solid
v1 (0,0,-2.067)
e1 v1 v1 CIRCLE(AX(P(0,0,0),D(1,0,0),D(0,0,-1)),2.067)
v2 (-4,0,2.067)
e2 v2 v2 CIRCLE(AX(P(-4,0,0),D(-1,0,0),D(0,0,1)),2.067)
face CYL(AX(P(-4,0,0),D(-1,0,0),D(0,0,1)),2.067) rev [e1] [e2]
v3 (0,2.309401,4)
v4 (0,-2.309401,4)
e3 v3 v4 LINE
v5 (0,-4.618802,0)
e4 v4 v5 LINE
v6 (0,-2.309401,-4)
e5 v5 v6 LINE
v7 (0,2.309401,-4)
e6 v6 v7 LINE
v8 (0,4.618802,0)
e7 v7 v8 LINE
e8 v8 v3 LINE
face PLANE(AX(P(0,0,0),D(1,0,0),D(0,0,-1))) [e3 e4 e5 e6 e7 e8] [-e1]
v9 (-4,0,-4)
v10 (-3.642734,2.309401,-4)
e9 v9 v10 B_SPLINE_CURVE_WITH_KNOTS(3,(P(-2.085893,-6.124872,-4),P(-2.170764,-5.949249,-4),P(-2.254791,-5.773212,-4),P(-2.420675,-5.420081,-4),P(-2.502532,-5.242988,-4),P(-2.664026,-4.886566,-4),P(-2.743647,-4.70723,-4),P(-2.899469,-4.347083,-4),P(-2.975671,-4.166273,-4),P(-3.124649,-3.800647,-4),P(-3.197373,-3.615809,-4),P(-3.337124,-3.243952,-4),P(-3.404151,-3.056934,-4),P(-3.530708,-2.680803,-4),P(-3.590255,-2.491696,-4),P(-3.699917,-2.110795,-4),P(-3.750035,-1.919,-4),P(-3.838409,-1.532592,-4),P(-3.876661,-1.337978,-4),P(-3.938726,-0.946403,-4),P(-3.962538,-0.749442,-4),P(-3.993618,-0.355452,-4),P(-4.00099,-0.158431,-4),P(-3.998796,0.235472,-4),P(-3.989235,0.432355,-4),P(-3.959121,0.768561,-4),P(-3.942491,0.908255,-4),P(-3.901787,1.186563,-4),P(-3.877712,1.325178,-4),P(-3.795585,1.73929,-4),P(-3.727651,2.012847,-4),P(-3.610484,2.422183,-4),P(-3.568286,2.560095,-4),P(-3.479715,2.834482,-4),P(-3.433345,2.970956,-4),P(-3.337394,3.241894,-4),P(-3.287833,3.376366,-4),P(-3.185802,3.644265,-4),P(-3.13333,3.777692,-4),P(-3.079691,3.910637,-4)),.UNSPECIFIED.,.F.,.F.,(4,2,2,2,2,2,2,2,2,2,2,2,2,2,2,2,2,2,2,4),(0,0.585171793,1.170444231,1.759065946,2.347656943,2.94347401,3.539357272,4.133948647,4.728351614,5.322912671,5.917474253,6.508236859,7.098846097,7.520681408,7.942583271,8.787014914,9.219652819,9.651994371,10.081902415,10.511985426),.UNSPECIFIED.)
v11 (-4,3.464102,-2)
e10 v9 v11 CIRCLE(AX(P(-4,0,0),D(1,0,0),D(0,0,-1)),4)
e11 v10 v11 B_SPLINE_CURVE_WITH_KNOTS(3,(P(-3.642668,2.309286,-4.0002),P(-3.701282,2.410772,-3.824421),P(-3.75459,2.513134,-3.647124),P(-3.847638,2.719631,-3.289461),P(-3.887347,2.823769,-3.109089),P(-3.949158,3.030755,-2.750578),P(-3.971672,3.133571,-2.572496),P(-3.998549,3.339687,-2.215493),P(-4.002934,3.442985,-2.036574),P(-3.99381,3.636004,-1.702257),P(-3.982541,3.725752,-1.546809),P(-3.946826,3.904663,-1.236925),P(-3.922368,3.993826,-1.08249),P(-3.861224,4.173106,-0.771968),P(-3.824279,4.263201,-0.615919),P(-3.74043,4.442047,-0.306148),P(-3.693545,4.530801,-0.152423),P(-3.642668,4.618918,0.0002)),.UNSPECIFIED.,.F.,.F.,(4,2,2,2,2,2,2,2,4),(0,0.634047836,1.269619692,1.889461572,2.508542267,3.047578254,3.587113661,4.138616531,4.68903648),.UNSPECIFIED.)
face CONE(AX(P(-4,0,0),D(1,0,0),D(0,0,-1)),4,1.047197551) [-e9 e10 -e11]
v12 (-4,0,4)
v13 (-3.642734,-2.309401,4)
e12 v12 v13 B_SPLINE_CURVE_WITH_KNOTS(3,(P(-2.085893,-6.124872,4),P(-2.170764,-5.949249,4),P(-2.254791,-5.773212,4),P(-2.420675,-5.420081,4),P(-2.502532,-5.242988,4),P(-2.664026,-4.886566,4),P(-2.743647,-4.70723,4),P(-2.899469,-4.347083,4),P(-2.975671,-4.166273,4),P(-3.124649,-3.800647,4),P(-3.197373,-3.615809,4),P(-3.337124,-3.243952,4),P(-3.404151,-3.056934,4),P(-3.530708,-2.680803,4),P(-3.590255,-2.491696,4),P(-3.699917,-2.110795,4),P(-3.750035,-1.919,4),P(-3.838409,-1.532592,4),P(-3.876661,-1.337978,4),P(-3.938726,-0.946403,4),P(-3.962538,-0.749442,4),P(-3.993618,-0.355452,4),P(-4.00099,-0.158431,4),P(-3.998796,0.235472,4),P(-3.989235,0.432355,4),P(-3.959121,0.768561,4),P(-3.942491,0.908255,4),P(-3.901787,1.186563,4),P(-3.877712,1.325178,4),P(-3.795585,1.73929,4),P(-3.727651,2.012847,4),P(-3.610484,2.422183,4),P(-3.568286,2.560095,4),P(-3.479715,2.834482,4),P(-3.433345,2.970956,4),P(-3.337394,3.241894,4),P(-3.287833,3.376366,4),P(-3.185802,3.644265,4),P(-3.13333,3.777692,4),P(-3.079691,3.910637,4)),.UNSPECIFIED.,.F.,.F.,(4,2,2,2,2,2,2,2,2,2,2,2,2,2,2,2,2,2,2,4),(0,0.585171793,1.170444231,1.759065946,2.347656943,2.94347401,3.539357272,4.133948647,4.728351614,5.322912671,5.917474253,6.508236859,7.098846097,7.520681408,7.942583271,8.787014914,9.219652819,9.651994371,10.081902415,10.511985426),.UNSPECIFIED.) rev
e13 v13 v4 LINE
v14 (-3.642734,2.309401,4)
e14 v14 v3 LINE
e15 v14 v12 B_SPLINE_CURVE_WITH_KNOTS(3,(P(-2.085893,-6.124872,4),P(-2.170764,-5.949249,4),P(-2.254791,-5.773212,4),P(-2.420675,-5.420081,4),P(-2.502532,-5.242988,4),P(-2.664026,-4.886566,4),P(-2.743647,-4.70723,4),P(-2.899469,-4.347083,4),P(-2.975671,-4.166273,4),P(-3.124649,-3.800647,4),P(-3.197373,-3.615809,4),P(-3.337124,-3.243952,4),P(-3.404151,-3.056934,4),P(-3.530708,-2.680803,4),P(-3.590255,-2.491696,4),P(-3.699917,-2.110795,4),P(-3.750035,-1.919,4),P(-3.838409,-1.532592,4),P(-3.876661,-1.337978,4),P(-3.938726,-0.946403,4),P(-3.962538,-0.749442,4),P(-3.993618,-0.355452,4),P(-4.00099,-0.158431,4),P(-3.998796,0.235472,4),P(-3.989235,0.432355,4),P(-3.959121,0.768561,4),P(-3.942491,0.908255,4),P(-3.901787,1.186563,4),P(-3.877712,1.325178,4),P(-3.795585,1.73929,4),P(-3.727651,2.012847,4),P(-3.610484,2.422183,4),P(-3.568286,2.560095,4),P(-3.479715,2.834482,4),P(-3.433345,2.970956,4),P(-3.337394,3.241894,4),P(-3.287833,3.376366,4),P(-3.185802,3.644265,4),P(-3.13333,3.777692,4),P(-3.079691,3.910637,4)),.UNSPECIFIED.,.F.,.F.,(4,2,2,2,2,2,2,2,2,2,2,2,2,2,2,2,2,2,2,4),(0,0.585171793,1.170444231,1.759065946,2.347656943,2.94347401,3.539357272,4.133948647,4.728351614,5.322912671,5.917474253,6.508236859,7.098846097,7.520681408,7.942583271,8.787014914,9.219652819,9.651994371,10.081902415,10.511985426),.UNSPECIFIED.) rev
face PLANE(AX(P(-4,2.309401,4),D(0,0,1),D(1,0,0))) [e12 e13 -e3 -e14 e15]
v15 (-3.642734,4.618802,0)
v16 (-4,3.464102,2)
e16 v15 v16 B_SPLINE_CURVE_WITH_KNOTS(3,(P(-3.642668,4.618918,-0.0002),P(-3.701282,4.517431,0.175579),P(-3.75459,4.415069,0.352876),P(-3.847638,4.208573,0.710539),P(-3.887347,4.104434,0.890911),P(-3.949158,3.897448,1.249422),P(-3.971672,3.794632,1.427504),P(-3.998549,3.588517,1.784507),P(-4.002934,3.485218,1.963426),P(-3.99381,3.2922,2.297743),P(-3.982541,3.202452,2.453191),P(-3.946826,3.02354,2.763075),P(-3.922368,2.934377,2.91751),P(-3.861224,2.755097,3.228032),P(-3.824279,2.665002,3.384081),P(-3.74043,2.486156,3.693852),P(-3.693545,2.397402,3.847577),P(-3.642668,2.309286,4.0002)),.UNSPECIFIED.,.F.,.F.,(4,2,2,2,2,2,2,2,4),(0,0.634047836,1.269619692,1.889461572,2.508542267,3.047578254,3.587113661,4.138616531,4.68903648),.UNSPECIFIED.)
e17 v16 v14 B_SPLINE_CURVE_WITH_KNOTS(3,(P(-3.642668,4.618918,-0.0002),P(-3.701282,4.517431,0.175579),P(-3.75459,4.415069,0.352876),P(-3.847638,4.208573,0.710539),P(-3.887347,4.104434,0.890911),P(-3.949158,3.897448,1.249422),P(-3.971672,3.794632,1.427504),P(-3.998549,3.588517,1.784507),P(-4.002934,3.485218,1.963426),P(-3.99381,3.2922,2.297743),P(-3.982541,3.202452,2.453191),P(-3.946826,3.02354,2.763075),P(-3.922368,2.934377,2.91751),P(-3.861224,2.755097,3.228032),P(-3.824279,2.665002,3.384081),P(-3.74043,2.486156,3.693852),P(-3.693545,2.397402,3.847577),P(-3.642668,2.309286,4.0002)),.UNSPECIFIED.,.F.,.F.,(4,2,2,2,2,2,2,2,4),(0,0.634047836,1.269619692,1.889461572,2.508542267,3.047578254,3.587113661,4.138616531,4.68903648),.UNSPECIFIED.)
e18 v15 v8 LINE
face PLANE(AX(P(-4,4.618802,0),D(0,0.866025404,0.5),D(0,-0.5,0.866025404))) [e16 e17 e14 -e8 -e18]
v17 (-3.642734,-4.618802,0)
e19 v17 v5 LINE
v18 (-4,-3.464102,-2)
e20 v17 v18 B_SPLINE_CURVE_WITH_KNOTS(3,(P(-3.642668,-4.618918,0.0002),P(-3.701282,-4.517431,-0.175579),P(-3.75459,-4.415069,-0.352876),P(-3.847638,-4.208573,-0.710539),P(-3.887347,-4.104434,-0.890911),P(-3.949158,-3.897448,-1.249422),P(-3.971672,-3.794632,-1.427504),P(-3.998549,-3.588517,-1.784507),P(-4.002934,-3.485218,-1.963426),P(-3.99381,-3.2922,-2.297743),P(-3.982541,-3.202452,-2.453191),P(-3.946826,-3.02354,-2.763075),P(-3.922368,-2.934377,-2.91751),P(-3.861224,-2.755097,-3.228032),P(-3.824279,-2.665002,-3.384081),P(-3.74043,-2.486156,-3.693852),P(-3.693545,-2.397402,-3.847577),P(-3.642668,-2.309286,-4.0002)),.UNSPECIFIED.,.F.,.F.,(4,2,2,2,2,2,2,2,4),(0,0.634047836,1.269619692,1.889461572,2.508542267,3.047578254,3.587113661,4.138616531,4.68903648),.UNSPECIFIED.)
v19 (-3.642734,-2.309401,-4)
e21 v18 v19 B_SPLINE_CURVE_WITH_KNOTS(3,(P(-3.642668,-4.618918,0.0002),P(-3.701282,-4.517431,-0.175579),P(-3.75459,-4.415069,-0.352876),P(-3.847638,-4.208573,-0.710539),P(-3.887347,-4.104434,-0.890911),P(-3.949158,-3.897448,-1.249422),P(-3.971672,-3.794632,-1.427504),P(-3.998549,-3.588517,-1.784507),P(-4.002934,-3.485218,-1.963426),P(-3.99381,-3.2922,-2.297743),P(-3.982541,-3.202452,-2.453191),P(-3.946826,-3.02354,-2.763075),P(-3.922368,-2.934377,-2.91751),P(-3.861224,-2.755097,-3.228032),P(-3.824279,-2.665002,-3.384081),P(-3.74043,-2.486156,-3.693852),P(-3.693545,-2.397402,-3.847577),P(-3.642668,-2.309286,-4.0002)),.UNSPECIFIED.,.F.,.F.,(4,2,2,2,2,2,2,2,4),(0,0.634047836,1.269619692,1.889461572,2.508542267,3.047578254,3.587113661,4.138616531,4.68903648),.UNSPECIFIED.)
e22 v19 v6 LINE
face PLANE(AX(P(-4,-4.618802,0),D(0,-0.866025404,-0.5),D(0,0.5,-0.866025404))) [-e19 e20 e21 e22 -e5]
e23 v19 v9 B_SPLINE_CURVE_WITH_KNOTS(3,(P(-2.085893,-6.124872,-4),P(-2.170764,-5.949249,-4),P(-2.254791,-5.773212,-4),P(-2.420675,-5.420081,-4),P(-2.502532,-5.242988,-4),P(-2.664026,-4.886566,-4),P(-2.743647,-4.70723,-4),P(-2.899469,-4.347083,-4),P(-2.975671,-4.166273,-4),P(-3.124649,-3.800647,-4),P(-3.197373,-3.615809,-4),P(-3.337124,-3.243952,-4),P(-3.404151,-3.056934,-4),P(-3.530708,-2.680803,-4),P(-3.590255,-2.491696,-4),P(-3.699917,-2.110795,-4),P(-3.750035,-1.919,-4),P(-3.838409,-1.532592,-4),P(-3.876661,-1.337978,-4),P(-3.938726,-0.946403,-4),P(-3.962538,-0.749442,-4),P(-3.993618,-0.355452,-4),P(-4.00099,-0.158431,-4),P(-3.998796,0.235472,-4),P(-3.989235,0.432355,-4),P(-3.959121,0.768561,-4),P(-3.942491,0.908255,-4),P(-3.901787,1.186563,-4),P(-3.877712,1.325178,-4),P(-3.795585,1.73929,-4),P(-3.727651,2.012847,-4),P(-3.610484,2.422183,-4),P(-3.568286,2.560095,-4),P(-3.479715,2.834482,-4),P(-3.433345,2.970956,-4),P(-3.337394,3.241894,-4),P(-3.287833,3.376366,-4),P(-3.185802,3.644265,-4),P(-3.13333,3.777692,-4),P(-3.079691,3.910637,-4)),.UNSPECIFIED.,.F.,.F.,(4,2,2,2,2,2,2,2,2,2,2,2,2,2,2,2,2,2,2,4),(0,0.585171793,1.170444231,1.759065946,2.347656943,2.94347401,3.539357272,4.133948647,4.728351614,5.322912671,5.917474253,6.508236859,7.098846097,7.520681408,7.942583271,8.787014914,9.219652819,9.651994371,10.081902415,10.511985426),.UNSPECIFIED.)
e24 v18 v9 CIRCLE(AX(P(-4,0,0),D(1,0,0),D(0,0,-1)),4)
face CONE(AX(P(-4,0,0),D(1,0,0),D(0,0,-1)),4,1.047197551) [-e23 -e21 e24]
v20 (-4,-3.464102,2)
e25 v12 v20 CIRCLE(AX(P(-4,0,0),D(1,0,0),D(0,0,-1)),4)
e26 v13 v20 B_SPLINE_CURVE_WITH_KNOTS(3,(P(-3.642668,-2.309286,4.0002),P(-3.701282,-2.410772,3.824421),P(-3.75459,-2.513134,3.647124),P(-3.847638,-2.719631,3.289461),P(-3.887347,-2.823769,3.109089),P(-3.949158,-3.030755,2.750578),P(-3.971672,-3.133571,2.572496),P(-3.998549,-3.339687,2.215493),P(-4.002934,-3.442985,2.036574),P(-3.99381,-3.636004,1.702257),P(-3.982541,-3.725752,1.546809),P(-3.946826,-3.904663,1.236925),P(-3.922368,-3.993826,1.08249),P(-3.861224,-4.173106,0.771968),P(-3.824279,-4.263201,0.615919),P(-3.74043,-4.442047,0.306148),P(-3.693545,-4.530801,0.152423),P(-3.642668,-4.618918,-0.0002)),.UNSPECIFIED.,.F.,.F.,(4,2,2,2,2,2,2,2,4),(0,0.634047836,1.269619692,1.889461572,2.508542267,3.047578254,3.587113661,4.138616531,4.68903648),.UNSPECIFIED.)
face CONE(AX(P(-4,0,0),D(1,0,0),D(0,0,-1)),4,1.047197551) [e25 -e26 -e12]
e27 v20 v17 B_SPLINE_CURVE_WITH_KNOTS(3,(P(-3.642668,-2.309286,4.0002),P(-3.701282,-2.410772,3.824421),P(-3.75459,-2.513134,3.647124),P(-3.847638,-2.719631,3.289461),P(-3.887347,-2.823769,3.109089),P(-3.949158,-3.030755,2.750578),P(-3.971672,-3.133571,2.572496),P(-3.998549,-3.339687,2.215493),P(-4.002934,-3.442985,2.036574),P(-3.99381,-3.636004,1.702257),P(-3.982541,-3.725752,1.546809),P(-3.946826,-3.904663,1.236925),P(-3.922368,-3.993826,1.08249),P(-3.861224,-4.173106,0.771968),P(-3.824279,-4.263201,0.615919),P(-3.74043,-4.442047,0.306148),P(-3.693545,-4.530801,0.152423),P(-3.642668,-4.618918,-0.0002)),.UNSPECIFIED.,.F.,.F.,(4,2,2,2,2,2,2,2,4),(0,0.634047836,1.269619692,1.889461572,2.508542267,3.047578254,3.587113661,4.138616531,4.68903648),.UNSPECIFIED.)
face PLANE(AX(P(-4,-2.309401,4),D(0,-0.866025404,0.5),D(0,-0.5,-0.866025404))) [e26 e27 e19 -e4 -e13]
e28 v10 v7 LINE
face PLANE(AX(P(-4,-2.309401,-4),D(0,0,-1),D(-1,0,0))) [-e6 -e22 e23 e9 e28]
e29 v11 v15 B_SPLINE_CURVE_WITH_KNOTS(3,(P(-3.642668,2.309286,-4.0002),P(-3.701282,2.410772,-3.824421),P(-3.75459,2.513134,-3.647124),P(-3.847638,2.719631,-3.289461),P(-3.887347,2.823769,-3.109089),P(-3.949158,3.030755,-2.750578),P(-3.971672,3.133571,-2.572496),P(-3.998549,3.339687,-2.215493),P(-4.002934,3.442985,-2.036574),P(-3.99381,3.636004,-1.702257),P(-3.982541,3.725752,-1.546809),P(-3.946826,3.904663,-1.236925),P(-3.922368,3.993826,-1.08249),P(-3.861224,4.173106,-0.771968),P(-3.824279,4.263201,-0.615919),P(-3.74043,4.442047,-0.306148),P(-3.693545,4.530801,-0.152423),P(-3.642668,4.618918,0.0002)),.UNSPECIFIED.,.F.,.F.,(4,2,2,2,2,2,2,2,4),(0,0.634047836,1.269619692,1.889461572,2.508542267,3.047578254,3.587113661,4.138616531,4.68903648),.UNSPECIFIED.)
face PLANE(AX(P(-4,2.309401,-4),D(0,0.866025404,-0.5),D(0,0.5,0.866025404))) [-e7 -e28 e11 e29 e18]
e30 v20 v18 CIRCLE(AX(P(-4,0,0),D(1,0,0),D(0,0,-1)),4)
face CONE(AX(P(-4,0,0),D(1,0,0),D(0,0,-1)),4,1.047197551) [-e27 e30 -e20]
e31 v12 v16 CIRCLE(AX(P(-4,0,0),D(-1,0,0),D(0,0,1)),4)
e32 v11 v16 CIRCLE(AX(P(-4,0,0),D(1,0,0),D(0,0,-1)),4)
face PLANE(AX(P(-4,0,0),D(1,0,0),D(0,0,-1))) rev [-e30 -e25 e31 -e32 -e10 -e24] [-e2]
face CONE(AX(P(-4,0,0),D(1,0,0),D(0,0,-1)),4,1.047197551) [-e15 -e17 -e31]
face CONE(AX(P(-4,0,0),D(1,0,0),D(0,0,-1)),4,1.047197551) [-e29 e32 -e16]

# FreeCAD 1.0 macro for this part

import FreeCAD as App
import Part
import Sketcher
Q = App.Units.Quantity

doc = App.newDocument("Part")
body = doc.addObject("PartDesign::Body", "Body")

# Sketch on YZ plane
sketch1 = body.newObject("Sketcher::SketchObject", "Sketch")
sketch1.AttachmentSupport = (doc.getObject("YZ_Plane"), [""])
sketch1.MapMode = "FlatFace"
sketch1.addGeometry([
    Part.LineSegment(App.Vector(4.618802, 0, 0), App.Vector(2.309401, 4, 0)),  # 0
    Part.LineSegment(App.Vector(2.309401, 4, 0), App.Vector(-2.309401, 4, 0)),  # 1
    Part.LineSegment(App.Vector(-2.309401, 4, 0), App.Vector(-4.618802, 0, 0)),  # 2
    Part.LineSegment(App.Vector(-4.618802, 0, 0), App.Vector(-2.309401, -4, 0)),  # 3
    Part.LineSegment(App.Vector(-2.309401, -4, 0), App.Vector(2.309401, -4, 0)),  # 4
    Part.LineSegment(App.Vector(2.309401, -4, 0), App.Vector(4.618802, 0, 0)),  # 5
], False)
sketch1.addConstraint([
    Sketcher.Constraint("Coincident", 0, 2, 1, 1),
    Sketcher.Constraint("Coincident", 1, 2, 2, 1),
    Sketcher.Constraint("Coincident", 2, 2, 3, 1),
    Sketcher.Constraint("Coincident", 3, 2, 4, 1),
    Sketcher.Constraint("Coincident", 4, 2, 5, 1),
    Sketcher.Constraint("Coincident", 5, 2, 0, 1),
    Sketcher.Constraint("Horizontal", 1),
    Sketcher.Constraint("Horizontal", 4),
    Sketcher.Constraint("Symmetric", 0, 2, 3, 2, -1, 1),
    Sketcher.Constraint("Symmetric", 2, 2, 5, 2, -1, 1),
    Sketcher.Constraint("PointOnObject", 2, 2, -1),
    Sketcher.Constraint("Parallel", 2, 5),
    Sketcher.Constraint("Vertical", 1, 2, 3, 2),
    Sketcher.Constraint("Angle", 0, Q("120 deg")),
    Sketcher.Constraint("DistanceY", -1, 1, 0, 2, 4.0),
    Sketcher.Constraint("DistanceX", -1, 1, 0, 2, 2.309401),
])
pad1 = body.newObject("PartDesign::Pad", "Pad")
pad1.Profile = sketch1
pad1.Length = 4
pad1.Reversed = True

# Sketch on XY plane
sketch2 = body.newObject("Sketcher::SketchObject", "Sketch001")
sketch2.AttachmentSupport = (doc.getObject("XY_Plane"), [""])
sketch2.MapMode = "FlatFace"
sketch2.addGeometry([
    Part.LineSegment(App.Vector(-4, 4, 0), App.Vector(-3.642734, 4.618802, 0)),
    Part.LineSegment(App.Vector(-3.642734, 4.618802, 0), App.Vector(-4, 4.618802, 0)),
    Part.LineSegment(App.Vector(-4, 4.618802, 0), App.Vector(-4, 4, 0)),
], False)
sketch2.addConstraint([
    Sketcher.Constraint("Coincident", 0, 2, 1, 1),
    Sketcher.Constraint("Coincident", 1, 2, 2, 1),
    Sketcher.Constraint("Coincident", 2, 2, 0, 1),
    Sketcher.Constraint("Horizontal", 1),
    Sketcher.Constraint("Vertical", 2),
    Sketcher.Constraint("Angle", 0, Q("60 deg")),
    Sketcher.Constraint("DistanceX", 1, 2, -1, 1, 4.0),
    Sketcher.Constraint("DistanceY", -1, 1, 2, 2, 4.0),
    Sketcher.Constraint("Distance", 0, 0.714531),
])
groove = body.newObject("PartDesign::Groove", "Groove")
groove.Profile = sketch2
groove.ReferenceAxis = (sketch2, ["H_Axis"])
groove.Angle = 360

# Sketch on YZ plane
sketch3 = body.newObject("Sketcher::SketchObject", "Sketch002")
sketch3.AttachmentSupport = (doc.getObject("YZ_Plane"), [""])
sketch3.MapMode = "FlatFace"
sketch3.AttachmentOffset = App.Placement(App.Vector(0, 0, -4), App.Rotation())
sketch3.addGeometry(Part.Circle(App.Vector(0, 0, 0), App.Vector(0, 0, 1), 2.067), False)
sketch3.addConstraint([
    Sketcher.Constraint("Coincident", 0, 3, -1, 1),
    Sketcher.Constraint("Diameter", 0, 4.134),
])
doc.recompute()
hole = body.newObject("PartDesign::Hole", "Hole")
hole.Profile = sketch3
hole.ThreadType = "None"
hole.Diameter = 4.134
hole.DepthType = "ThroughAll"
hole.Reversed = True

doc.recompute()
